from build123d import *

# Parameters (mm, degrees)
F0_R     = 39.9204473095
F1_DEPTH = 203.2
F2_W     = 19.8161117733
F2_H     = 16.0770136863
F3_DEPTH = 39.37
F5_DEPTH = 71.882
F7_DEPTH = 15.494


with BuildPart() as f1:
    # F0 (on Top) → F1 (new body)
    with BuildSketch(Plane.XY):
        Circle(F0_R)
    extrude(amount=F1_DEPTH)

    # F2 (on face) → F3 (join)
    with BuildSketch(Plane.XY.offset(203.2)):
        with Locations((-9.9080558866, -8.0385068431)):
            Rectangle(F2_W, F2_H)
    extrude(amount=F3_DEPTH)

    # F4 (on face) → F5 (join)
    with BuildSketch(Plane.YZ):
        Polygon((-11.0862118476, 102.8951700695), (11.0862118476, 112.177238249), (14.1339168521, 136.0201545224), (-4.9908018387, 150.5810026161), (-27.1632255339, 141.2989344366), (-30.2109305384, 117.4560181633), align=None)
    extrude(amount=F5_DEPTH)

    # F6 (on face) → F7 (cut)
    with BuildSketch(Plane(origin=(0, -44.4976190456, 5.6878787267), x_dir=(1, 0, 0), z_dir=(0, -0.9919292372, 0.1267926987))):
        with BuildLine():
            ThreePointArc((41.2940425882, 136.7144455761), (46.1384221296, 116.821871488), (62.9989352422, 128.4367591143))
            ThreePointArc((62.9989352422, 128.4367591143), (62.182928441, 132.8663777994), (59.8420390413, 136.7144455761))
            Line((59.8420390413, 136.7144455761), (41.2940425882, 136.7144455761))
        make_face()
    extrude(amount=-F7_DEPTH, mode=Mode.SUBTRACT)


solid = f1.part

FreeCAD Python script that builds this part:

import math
import FreeCAD as App
import Part
import Sketcher

V = App.Vector


def add_polygon(sketch, points):
    """Adds a closed chain of lines whose ends are joined by coincident constraints."""
    first, n = sketch.GeometryCount, len(points)
    for a, b in zip(points, points[1:] + points[:1]):
        sketch.addGeometry(Part.LineSegment(App.Vector(*a, 0), App.Vector(*b, 0)), False)
    for i in range(n):
        sketch.addConstraint(Sketcher.Constraint("Coincident", first + i, 2, first + (i + 1) % n, 1))

doc = App.newDocument("Part")
params = doc.addObject("Spreadsheet::Sheet", "Params")
for row, (alias, value) in enumerate([
    ("pad1_length", "8 in"),
    ("pad2_length", "1.55 in"),
    ("pad3_length", "2.83 in"),
    ("pocket1_length", "0.61 in"),
], start=1):
    params.set(f"A{row}", alias)
    params.set(f"B{row}", "=" + value)
    params.setAlias(f"B{row}", alias)

body = doc.addObject("PartDesign::Body", "Body")

# Sketch on XY plane
sketch1 = body.newObject("Sketcher::SketchObject", "Sketch")
sketch1.AttachmentSupport = (doc.getObject("XY_Plane"), [""])
sketch1.MapMode = "FlatFace"
sketch1.addGeometry(Part.Circle(V(0, 0, 0), V(0, 0, 1), 40), False)
sketch1.addConstraint([
    Sketcher.Constraint("Coincident", 0, 3, -1, 1),
    Sketcher.Constraint("Diameter", 0, 79.840895),
])
pad1 = body.newObject("PartDesign::Pad", "Pad")
pad1.Profile = sketch1
pad1.setExpression("Length", "Params.pad1_length")

# Sketch on XY plane
sketch2 = body.newObject("Sketcher::SketchObject", "Sketch001")
sketch2.AttachmentSupport = (doc.getObject("XY_Plane"), [""])
sketch2.MapMode = "FlatFace"
sketch2.AttachmentOffset = App.Placement(V(0, 0, 8 * 25.4), App.Rotation())
add_polygon(sketch2, [(-20, 0), (-20, -16), (0, -16), (0, 0)])  # lines 0-3
sketch2.addConstraint([
    Sketcher.Constraint("Vertical", 0),
    Sketcher.Constraint("Horizontal", 1),
    Sketcher.Constraint("Vertical", 2),
    Sketcher.Constraint("Horizontal", 3),
    Sketcher.Constraint("Coincident", 2, 2, -1, 1),
    Sketcher.Constraint("DistanceX", 1, 1, 1, 2, 19.816112),
    Sketcher.Constraint("DistanceY", 0, 2, 0, 1, 16.077014),
])
pad2 = body.newObject("PartDesign::Pad", "Pad001")
pad2.Profile = sketch2
pad2.setExpression("Length", "Params.pad2_length")

# Sketch on YZ plane
sketch3 = body.newObject("Sketcher::SketchObject", "Sketch002")
sketch3.AttachmentSupport = (doc.getObject("YZ_Plane"), [""])
sketch3.MapMode = "FlatFace"
add_polygon(sketch3, [(-11, 103), (11, 112), (14, 136), (-5, 151), (-27, 141), (-30, 117)])  # lines 0-5
sketch3.addConstraint([
    Sketcher.Constraint("Parallel", 0, 3),
    Sketcher.Constraint("Parallel", 1, 4),
    Sketcher.Constraint("Parallel", 2, 5),
    Sketcher.Constraint("Equal", 0, 1),
    Sketcher.Constraint("Equal", 1, 2),
    Sketcher.Constraint("Equal", 2, 3),
    Sketcher.Constraint("DistanceX", 2, 2, -1, 1, 4.990802),
    Sketcher.Constraint("DistanceX", -1, 1, 0, 2, 11.086212),
    Sketcher.Constraint("DistanceY", -1, 1, 0, 2, 112.177238),
    Sketcher.Constraint("DistanceX", 4, 2, -1, 1, 30.210931),
    Sketcher.Constraint("DistanceY", -1, 1, 4, 2, 117.456018),
    Sketcher.Constraint("DistanceX", 5, 2, -1, 1, 11.086212),
])
pad3 = body.newObject("PartDesign::Pad", "Pad002")
pad3.Profile = sketch3
pad3.setExpression("Length", "Params.pad3_length")

# Sketch on an angled plane
sketch4 = body.newObject("Sketcher::SketchObject", "Sketch003")
sketch4.Placement = App.Placement(V(0, -44.497619, 5.687879), App.Rotation(V(1, 0, 0), V(0, 0.126792699, 0.991929237), V(0, -0.991929237, 0.126792699), "ZXY"))
sketch4.addGeometry([
    Part.ArcOfCircle(Part.Circle(V(51, 128, 0), V(0, 0, 1), 12), math.radians(138), math.radians(360)),
    Part.ArcOfCircle(Part.Circle(V(51, 128, 0), V(0, 0, 1), 12), math.radians(0), math.radians(42)),
    Part.LineSegment(V(60, 137, 0), V(41, 137, 0)),
], False)
sketch4.addConstraint([
    Sketcher.Constraint("Tangent", 0, 2, 1, 1),
    Sketcher.Constraint("Coincident", 1, 2, 2, 1),
    Sketcher.Constraint("Coincident", 2, 2, 0, 1),
    Sketcher.Constraint("Horizontal", 2),
    Sketcher.Constraint("Equal", 0, 1),
    Sketcher.Constraint("Horizontal", 1, 3, 0, 2),
    Sketcher.Constraint("Radius", 0, 12.430894),
    Sketcher.Constraint("DistanceX", 0, 3, 1, 2, 9.273998),
    Sketcher.Constraint("DistanceX", -1, 1, 0, 3, 50.568041),
    Sketcher.Constraint("DistanceY", -1, 1, 0, 3, 128.436759),
])
pocket1 = body.newObject("PartDesign::Pocket", "Pocket")
pocket1.Profile = sketch4
pocket1.setExpression("Length", "Params.pocket1_length")

doc.recompute()
